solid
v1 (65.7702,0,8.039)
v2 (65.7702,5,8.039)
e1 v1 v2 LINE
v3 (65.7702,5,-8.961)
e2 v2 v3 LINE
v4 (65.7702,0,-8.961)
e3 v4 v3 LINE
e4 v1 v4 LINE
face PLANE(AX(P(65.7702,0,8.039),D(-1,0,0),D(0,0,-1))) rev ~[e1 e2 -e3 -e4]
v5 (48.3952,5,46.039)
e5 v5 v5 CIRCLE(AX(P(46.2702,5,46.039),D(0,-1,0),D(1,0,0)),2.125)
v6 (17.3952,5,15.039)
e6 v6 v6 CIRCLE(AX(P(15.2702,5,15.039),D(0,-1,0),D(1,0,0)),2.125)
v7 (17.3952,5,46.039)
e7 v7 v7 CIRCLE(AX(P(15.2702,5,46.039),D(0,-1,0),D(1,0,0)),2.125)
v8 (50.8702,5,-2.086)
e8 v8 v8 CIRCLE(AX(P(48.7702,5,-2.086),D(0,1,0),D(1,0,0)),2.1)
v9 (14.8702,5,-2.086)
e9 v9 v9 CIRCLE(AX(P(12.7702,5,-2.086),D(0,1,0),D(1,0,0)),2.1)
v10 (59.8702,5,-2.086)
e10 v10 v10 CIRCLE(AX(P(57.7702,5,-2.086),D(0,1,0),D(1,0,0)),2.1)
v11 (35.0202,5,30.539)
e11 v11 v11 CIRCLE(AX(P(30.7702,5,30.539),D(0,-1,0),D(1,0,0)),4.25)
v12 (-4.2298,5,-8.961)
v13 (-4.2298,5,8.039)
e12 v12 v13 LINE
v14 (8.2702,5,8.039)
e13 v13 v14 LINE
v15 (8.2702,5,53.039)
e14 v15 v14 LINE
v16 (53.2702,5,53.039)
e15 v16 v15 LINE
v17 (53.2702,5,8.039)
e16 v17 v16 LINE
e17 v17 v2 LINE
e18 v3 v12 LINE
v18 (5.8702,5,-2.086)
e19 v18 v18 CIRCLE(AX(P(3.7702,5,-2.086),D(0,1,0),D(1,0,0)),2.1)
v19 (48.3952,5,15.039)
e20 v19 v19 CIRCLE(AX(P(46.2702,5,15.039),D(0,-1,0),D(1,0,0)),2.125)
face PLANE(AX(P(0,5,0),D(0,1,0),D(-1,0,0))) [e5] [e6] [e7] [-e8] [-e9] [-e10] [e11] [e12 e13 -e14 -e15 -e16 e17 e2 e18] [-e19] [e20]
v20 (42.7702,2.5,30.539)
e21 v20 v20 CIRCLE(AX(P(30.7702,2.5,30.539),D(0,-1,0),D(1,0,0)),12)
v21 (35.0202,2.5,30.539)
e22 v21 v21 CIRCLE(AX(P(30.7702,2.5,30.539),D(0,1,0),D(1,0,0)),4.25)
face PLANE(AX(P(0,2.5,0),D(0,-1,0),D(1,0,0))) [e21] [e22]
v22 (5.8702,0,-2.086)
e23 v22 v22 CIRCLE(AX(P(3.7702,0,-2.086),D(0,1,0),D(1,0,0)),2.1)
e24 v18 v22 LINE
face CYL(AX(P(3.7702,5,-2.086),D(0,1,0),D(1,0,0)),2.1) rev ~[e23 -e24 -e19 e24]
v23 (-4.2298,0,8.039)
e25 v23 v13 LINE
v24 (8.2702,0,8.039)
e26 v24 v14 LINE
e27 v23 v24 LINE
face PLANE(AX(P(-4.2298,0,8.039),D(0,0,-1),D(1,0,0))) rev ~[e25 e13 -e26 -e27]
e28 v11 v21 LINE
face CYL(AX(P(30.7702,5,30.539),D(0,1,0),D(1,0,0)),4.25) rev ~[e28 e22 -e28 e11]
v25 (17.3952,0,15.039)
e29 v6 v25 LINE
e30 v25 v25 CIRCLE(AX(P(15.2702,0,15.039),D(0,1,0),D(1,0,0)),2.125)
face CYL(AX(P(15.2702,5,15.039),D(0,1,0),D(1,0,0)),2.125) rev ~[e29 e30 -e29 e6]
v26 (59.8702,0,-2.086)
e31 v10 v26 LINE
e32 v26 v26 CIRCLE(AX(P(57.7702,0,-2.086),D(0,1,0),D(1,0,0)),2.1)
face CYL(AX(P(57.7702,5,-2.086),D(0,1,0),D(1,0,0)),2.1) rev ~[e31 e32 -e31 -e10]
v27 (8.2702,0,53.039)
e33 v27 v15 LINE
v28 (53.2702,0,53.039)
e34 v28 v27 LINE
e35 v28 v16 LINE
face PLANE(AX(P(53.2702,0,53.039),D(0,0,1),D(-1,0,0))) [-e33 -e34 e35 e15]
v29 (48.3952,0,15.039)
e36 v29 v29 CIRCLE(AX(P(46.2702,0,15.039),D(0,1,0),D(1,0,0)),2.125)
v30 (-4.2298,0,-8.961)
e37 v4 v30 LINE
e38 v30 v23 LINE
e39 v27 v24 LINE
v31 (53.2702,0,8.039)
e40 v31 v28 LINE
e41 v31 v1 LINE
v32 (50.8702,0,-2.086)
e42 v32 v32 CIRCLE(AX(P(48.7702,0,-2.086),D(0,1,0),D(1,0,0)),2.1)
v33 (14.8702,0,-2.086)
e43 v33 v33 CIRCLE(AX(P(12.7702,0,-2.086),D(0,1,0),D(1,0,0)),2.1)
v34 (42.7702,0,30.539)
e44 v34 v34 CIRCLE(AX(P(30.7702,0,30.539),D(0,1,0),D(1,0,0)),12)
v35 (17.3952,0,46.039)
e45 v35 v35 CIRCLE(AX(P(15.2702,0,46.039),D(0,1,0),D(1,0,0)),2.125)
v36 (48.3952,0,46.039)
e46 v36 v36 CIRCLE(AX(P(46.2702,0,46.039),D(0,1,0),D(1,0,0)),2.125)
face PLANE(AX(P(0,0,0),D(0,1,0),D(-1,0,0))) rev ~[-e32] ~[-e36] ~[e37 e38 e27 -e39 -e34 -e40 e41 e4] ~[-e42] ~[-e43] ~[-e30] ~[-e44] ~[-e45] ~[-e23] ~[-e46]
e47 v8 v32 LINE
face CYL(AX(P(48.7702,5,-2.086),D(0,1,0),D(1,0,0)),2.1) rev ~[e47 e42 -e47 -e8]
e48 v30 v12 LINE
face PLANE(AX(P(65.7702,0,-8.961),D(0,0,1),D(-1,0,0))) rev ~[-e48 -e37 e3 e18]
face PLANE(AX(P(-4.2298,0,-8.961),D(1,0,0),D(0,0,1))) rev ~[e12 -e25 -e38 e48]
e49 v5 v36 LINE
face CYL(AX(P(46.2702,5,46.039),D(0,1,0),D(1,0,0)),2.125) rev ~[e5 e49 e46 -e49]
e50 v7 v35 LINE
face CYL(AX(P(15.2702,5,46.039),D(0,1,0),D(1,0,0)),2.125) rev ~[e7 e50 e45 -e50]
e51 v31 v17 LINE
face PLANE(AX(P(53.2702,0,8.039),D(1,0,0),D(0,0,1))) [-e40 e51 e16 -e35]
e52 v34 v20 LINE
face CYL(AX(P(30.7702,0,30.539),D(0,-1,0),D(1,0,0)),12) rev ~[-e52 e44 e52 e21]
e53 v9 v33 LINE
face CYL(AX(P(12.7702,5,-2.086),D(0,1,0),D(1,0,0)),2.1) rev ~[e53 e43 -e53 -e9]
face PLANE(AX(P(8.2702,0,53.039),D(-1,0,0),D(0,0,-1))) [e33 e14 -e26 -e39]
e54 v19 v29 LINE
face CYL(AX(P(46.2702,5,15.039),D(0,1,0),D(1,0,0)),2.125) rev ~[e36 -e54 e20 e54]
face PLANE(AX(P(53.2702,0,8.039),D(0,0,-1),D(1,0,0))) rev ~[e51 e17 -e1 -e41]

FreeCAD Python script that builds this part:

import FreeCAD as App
import Part
import Sketcher
Q = App.Units.Quantity

doc = App.newDocument("Part")
params = doc.addObject("Spreadsheet::Sheet", "Params")
for row, (alias, value) in enumerate([
    ("sketch1_width", "45 mm"),
    ("sketch1_width2", "70 mm"),
    ("sketch1_height", "17 mm"),
    ("pad1_length", "5 mm"),
    ("sketch2_diameter", "4.2 mm"),
    ("pocket1_length", "20 mm"),
    ("sketch3_diameter", "4.2 mm"),
    ("pocket2_length", "20 mm"),
    ("sketch4_diameter", "8.5 mm"),
    ("sketch4_diameter2", "4.25 mm"),
    ("pocket3_length", "20 mm"),
    ("sketch5_diameter", "24 mm"),
    ("pocket4_length", "2.5 mm"),
], start=1):
    params.set(f"A{row}", alias)
    params.set(f"B{row}", "=" + value)
    params.setAlias(f"B{row}", alias)

body = doc.addObject("PartDesign::Body", "Body")

# Sketch on XZ plane
sketch1 = body.newObject("Sketcher::SketchObject", "Sketch")
sketch1.AttachmentSupport = (doc.getObject("XZ_Plane"), [""])
sketch1.MapMode = "FlatFace"
sketch1.addGeometry([
    Part.LineSegment(App.Vector(-4, -9, 0), App.Vector(-4, 8, 0)),  # 0
    Part.LineSegment(App.Vector(-4, 8, 0), App.Vector(8, 8, 0)),  # 1
    Part.LineSegment(App.Vector(8, 8, 0), App.Vector(8, 53, 0)),  # 2
    Part.LineSegment(App.Vector(8, 53, 0), App.Vector(53, 53, 0)),  # 3
    Part.LineSegment(App.Vector(53, 53, 0), App.Vector(53, 8, 0)),  # 4
    Part.LineSegment(App.Vector(53, 8, 0), App.Vector(66, 8, 0)),  # 5
    Part.LineSegment(App.Vector(66, 8, 0), App.Vector(66, -9, 0)),  # 6
    Part.LineSegment(App.Vector(66, -9, 0), App.Vector(-4, -9, 0)),  # 7
], False)
sketch1.addConstraint([
    Sketcher.Constraint("Coincident", 0, 2, 1, 1),
    Sketcher.Constraint("Coincident", 1, 2, 2, 1),
    Sketcher.Constraint("Coincident", 2, 2, 3, 1),
    Sketcher.Constraint("Coincident", 3, 2, 4, 1),
    Sketcher.Constraint("Coincident", 4, 2, 5, 1),
    Sketcher.Constraint("Coincident", 5, 2, 6, 1),
    Sketcher.Constraint("Coincident", 6, 2, 7, 1),
    Sketcher.Constraint("Coincident", 7, 2, 0, 1),
    Sketcher.Constraint("Vertical", 0),
    Sketcher.Constraint("Horizontal", 1),
    Sketcher.Constraint("Vertical", 2),
    Sketcher.Constraint("Horizontal", 3),
    Sketcher.Constraint("Vertical", 4),
    Sketcher.Constraint("Horizontal", 5),
    Sketcher.Constraint("Vertical", 6),
    Sketcher.Constraint("Horizontal", 7),
    Sketcher.Constraint("Horizontal", 1, 2, 4, 2),
    Sketcher.Constraint("Equal", 1, 5),
    Sketcher.Constraint("Equal", 3, 2),
    Sketcher.Constraint("DistanceX", 3, 1, 3, 2, Q("45 mm")),
    Sketcher.Constraint("DistanceX", 7, 2, 7, 1, Q("70 mm")),
    Sketcher.Constraint("DistanceY", 0, 1, 0, 2, Q("17 mm")),
    Sketcher.Constraint("DistanceY", -1, 1, 0, 2, Q("8.039 mm")),
    Sketcher.Constraint("DistanceX", 0, 2, -1, 1, Q("4.2298 mm")),
])
sketch1.setExpression("Constraints[19]", "Params.sketch1_width")
sketch1.setExpression("Constraints[20]", "Params.sketch1_width2")
sketch1.setExpression("Constraints[21]", "Params.sketch1_height")
pad1 = body.newObject("PartDesign::Pad", "Pad")
pad1.Profile = sketch1
pad1.setExpression("Length", "Params.pad1_length")
pad1.Reversed = True

# Sketch on XZ plane
sketch2 = body.newObject("Sketcher::SketchObject", "Sketch001")
sketch2.AttachmentSupport = (doc.getObject("XZ_Plane"), [""])
sketch2.MapMode = "FlatFace"
sketch2.AttachmentOffset = App.Placement(App.Vector(0, 0, -5), App.Rotation())
sketch2.addGeometry(Part.Circle(App.Vector(3.8, -2.1, 0), App.Vector(0, 0, 1), 2.1), False)
sketch2.addConstraint([
    Sketcher.Constraint("Diameter", 0, Q("4.2 mm")),
    Sketcher.Constraint("DistanceY", 0, 3, -1, 1, Q("2.086 mm")),
    Sketcher.Constraint("DistanceX", -1, 1, 0, 3, Q("3.7702 mm")),
])
sketch2.setExpression("Constraints[0]", "Params.sketch2_diameter")
pocket1 = body.newObject("PartDesign::Pocket", "Pocket")
pocket1.Profile = sketch2
pocket1.setExpression("Length", "Params.pocket1_length")
pocket1.Reversed = True

# Sketch on XZ plane
sketch3 = body.newObject("Sketcher::SketchObject", "Sketch002")
sketch3.AttachmentSupport = (doc.getObject("XZ_Plane"), [""])
sketch3.MapMode = "FlatFace"
sketch3.AttachmentOffset = App.Placement(App.Vector(0, 0, -5), App.Rotation())
sketch3.addGeometry([
    Part.Circle(App.Vector(12.8, -2.1, 0), App.Vector(0, 0, 1), 2.1),
    Part.Circle(App.Vector(48.8, -2.1, 0), App.Vector(0, 0, 1), 2.1),
    Part.Circle(App.Vector(57.8, -2.1, 0), App.Vector(0, 0, 1), 2.1),
], False)
sketch3.addConstraint([
    Sketcher.Constraint("Equal", 0, 1),
    Sketcher.Constraint("Equal", 1, 2),
    Sketcher.Constraint("Horizontal", 0, 3, 1, 3),
    Sketcher.Constraint("Horizontal", 1, 3, 2, 3),
    Sketcher.Constraint("Diameter", 0, Q("4.2 mm")),
    Sketcher.Constraint("DistanceX", 0, 3, 1, 3, Q("36 mm")),
    Sketcher.Constraint("DistanceX", 1, 3, 2, 3, Q("9 mm")),
    Sketcher.Constraint("DistanceY", 0, 3, -1, 1, Q("2.086 mm")),
    Sketcher.Constraint("DistanceX", -1, 1, 0, 3, Q("12.7702 mm")),
])
sketch3.setExpression("Constraints[4]", "Params.sketch3_diameter")
pocket2 = body.newObject("PartDesign::Pocket", "Pocket001")
pocket2.Profile = sketch3
pocket2.setExpression("Length", "Params.pocket2_length")
pocket2.Reversed = True

# Sketch on XZ plane
sketch4 = body.newObject("Sketcher::SketchObject", "Sketch003")
sketch4.AttachmentSupport = (doc.getObject("XZ_Plane"), [""])
sketch4.MapMode = "FlatFace"
sketch4.AttachmentOffset = App.Placement(App.Vector(0, 0, -5), App.Rotation())
sketch4.addGeometry([
    Part.Circle(App.Vector(15.3, 46, 0), App.Vector(0, 0, 1), 2.1),  # 0
    Part.Circle(App.Vector(46.3, 46, 0), App.Vector(0, 0, 1), 2.1),  # 1
    Part.Circle(App.Vector(15.3, 15, 0), App.Vector(0, 0, 1), 2.1),  # 2
    Part.Circle(App.Vector(30.8, 30.5, 0), App.Vector(0, 0, 1), 4.2),  # 3
    Part.Circle(App.Vector(46.3, 15, 0), App.Vector(0, 0, 1), 2.1),  # 4
], False)
sketch4.addConstraint([
    Sketcher.Constraint("Equal", 0, 1),
    Sketcher.Constraint("Equal", 1, 2),
    Sketcher.Constraint("Equal", 2, 4),
    Sketcher.Constraint("Horizontal", 0, 3, 1, 3),
    Sketcher.Constraint("Horizontal", 2, 3, 4, 3),
    Sketcher.Constraint("Vertical", 0, 3, 2, 3),
    Sketcher.Constraint("Vertical", 1, 3, 4, 3),
    Sketcher.Constraint("Diameter", 3, Q("8.5 mm")),
    Sketcher.Constraint("Diameter", 0, Q("4.25 mm")),
    Sketcher.Constraint("DistanceX", 0, 3, 1, 3, Q("31 mm")),
    Sketcher.Constraint("DistanceY", 2, 3, 0, 3, Q("31 mm")),
    Sketcher.Constraint("DistanceX", 0, 3, 3, 3, Q("15.5 mm")),
    Sketcher.Constraint("DistanceY", 3, 3, 0, 3, Q("15.5 mm")),
    Sketcher.Constraint("DistanceY", -1, 1, 0, 3, Q("46.039 mm")),
    Sketcher.Constraint("DistanceX", -1, 1, 0, 3, Q("15.2702 mm")),
])
sketch4.setExpression("Constraints[7]", "Params.sketch4_diameter")
sketch4.setExpression("Constraints[8]", "Params.sketch4_diameter2")
pocket3 = body.newObject("PartDesign::Pocket", "Pocket002")
pocket3.Profile = sketch4
pocket3.setExpression("Length", "Params.pocket3_length")
pocket3.Reversed = True

# Sketch on XZ plane
sketch5 = body.newObject("Sketcher::SketchObject", "Sketch004")
sketch5.AttachmentSupport = (doc.getObject("XZ_Plane"), [""])
sketch5.MapMode = "FlatFace"
sketch5.addGeometry(Part.Circle(App.Vector(31, 31, 0), App.Vector(0, 0, 1), 12), False)
sketch5.addConstraint([
    Sketcher.Constraint("Diameter", 0, Q("24 mm")),
    Sketcher.Constraint("DistanceY", -1, 1, 0, 3, Q("30.539 mm")),
    Sketcher.Constraint("DistanceX", -1, 1, 0, 3, Q("30.7702 mm")),
])
sketch5.setExpression("Constraints[0]", "Params.sketch5_diameter")
pocket4 = body.newObject("PartDesign::Pocket", "Pocket003")
pocket4.Profile = sketch5
pocket4.setExpression("Length", "Params.pocket4_length")

doc.recompute()
